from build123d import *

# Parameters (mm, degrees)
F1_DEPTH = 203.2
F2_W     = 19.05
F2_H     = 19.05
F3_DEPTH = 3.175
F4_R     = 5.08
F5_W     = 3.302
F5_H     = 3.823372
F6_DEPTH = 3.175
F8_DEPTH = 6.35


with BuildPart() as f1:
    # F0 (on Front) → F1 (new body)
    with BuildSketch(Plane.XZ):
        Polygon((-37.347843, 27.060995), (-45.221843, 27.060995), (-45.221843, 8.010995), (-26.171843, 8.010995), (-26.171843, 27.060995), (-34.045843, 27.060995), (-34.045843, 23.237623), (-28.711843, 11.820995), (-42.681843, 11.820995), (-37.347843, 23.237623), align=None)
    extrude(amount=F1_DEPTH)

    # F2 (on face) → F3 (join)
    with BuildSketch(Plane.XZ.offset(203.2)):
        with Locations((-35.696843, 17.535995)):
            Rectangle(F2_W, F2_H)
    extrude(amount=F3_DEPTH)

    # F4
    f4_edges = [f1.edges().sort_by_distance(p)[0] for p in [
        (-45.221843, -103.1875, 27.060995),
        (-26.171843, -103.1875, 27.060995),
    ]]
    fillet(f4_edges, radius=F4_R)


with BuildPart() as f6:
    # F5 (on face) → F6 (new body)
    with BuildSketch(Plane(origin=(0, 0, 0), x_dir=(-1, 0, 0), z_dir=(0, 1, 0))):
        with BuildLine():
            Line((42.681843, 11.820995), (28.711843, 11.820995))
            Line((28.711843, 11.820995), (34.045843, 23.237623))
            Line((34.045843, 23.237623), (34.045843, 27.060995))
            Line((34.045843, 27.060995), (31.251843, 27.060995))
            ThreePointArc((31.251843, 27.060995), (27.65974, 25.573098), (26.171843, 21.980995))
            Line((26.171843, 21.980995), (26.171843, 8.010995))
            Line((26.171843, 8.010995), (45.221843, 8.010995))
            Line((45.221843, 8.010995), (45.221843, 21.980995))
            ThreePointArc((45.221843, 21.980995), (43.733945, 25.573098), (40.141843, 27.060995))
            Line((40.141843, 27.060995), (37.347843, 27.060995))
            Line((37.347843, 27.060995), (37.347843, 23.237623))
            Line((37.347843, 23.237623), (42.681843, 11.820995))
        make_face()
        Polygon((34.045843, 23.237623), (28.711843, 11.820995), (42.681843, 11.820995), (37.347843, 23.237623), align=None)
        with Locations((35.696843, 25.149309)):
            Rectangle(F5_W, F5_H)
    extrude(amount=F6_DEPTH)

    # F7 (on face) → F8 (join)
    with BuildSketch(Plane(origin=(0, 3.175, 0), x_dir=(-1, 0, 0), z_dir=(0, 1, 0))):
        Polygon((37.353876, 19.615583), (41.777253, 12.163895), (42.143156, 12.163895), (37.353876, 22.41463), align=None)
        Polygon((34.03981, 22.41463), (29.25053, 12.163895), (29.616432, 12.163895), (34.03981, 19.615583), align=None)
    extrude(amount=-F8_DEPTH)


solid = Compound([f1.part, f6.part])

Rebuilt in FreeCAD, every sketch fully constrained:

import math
import FreeCAD as App
import Part
import Sketcher
Q = App.Units.Quantity


def edges_at(feature, points):
    """Names of the edges that pass closest to the given points."""
    edges = feature.Shape.Edges
    near = lambda p: min(range(len(edges)), key=lambda i: edges[i].distToShape(Part.Vertex(*p))[0])
    return sorted({f"Edge{near(p) + 1}" for p in points})


def add_polygon(sketch, points):
    """Adds a closed chain of lines whose ends are joined by coincident constraints."""
    first, n = sketch.GeometryCount, len(points)
    for a, b in zip(points, points[1:] + points[:1]):
        sketch.addGeometry(Part.LineSegment(App.Vector(*a, 0), App.Vector(*b, 0)), False)
    for i in range(n):
        sketch.addConstraint(Sketcher.Constraint("Coincident", first + i, 2, first + (i + 1) % n, 1))

doc = App.newDocument("Part")
body = doc.addObject("PartDesign::Body", "Body")

# Sketch on XZ plane
sketch1 = body.newObject("Sketcher::SketchObject", "Sketch")
sketch1.AttachmentSupport = (doc.getObject("XZ_Plane"), [""])
sketch1.MapMode = "FlatFace"
add_polygon(sketch1, [(-37.3, 27.1), (-45.2, 27.1), (-45.2, 8), (-26.2, 8), (-26.2, 27.1), (-34, 27.1), (-34, 23.2), (-28.7, 11.8), (-42.7, 11.8), (-37.3, 23.2)])  # lines 0-9
sketch1.addConstraint([
    Sketcher.Constraint("Horizontal", 0),
    Sketcher.Constraint("Vertical", 1),
    Sketcher.Constraint("Horizontal", 2),
    Sketcher.Constraint("Vertical", 3),
    Sketcher.Constraint("Horizontal", 4),
    Sketcher.Constraint("Vertical", 5),
    Sketcher.Constraint("Horizontal", 7),
    Sketcher.Constraint("Vertical", 9),
    Sketcher.Constraint("Horizontal", 0, 2, 3, 2),
    Sketcher.Constraint("Horizontal", 5, 2, 8, 2),
    Sketcher.Constraint("Equal", 0, 4),
    Sketcher.Constraint("Equal", 2, 1),
    Sketcher.Constraint("Equal", 6, 8),
    Sketcher.Constraint("DistanceX", 0, 2, 0, 1, Q("0.31 in")),
    Sketcher.Constraint("DistanceX", 2, 1, 2, 2, Q("0.75 in")),
    Sketcher.Constraint("DistanceX", 7, 2, 7, 1, Q("0.55 in")),
    Sketcher.Constraint("DistanceY", 6, 2, 3, 2, Q("0.6 in")),
    Sketcher.Constraint("DistanceY", 5, 2, 5, 1, Q("3.823372 mm")),
    Sketcher.Constraint("DistanceX", 0, 2, -1, 1, Q("45.221843 mm")),
    Sketcher.Constraint("DistanceY", -1, 1, 0, 2, Q("27.060995 mm")),
])
pad1 = body.newObject("PartDesign::Pad", "Pad")
pad1.Profile = sketch1
pad1.Length = Q("8 in")

# Sketch on XZ plane
sketch2 = body.newObject("Sketcher::SketchObject", "Sketch001")
sketch2.AttachmentSupport = (doc.getObject("XZ_Plane"), [""])
sketch2.MapMode = "FlatFace"
sketch2.AttachmentOffset = App.Placement(App.Vector(0, 0, 8 * 25.4), App.Rotation())
add_polygon(sketch2, [(-45, 27), (-45, 8), (-26, 8), (-26, 27)])  # lines 0-3
sketch2.addConstraint([
    Sketcher.Constraint("Vertical", 0),
    Sketcher.Constraint("Horizontal", 1),
    Sketcher.Constraint("Vertical", 2),
    Sketcher.Constraint("Horizontal", 3),
    Sketcher.Constraint("Equal", 3, 0),
    Sketcher.Constraint("DistanceX", 1, 1, 1, 2, Q("0.75 in")),
    Sketcher.Constraint("DistanceX", 0, 2, -1, 1, Q("45.221843 mm")),
    Sketcher.Constraint("DistanceY", -1, 1, 0, 2, Q("8.010995 mm")),
])
pad2 = body.newObject("PartDesign::Pad", "Pad001")
pad2.Profile = sketch2
pad2.Length = Q("0.125 in")
doc.recompute()

fillet = body.newObject("PartDesign::Fillet", "Fillet")
fillet.Base = (pad2, edges_at(pad2, [(-45.222, -103.188, 27.061), (-26.172, -103.188, 27.061)]))
fillet.Radius = Q("0.2 in")
body2 = doc.addObject("PartDesign::Body", "Body001")

# Sketch on XZ plane
sketch3 = body2.newObject("Sketcher::SketchObject", "Sketch002")
sketch3.AttachmentSupport = (doc.getObject("XZ_Plane001"), [""])
sketch3.MapMode = "FlatFace"
sketch3.addGeometry([
    Part.ArcOfCircle(Part.Circle(App.Vector(-31, 22, 0), App.Vector(0, 0, 1), 5), math.radians(0), math.radians(90)),  # 0
    Part.LineSegment(App.Vector(-26, 22, 0), App.Vector(-26, 8, 0)),  # 1
    Part.LineSegment(App.Vector(-26, 8, 0), App.Vector(-45, 8, 0)),  # 2
    Part.LineSegment(App.Vector(-45, 8, 0), App.Vector(-45, 22, 0)),  # 3
    Part.ArcOfCircle(Part.Circle(App.Vector(-40, 22, 0), App.Vector(0, 0, 1), 5), math.radians(90), math.radians(180)),  # 4
    Part.LineSegment(App.Vector(-40, 27, 0), App.Vector(-31, 27, 0)),  # 5
], False)
sketch3.addConstraint([
    Sketcher.Constraint("Tangent", 0, 1, 1, 1),
    Sketcher.Constraint("Coincident", 1, 2, 2, 1),
    Sketcher.Constraint("Coincident", 2, 2, 3, 1),
    Sketcher.Constraint("Tangent", 3, 2, 4, 2),
    Sketcher.Constraint("Tangent", 4, 1, 5, 1),
    Sketcher.Constraint("Tangent", 5, 2, 0, 2),
    Sketcher.Constraint("Vertical", 1),
    Sketcher.Constraint("Horizontal", 2),
    Sketcher.Constraint("Vertical", 3),
    Sketcher.Constraint("Horizontal", 5),
    Sketcher.Constraint("Equal", 0, 4),
    Sketcher.Constraint("Radius", 0, Q("0.1999999 in")),
    Sketcher.Constraint("DistanceX", 2, 2, 2, 1, Q("0.75 in")),
    Sketcher.Constraint("DistanceY", 1, 2, 1, 1, Q("0.55 in")),
    Sketcher.Constraint("DistanceX", 0, 3, -1, 1, Q("31.251841 mm")),
    Sketcher.Constraint("DistanceY", -1, 1, 0, 3, Q("21.980997 mm")),
])
pad3 = body2.newObject("PartDesign::Pad", "Pad002")
pad3.Profile = sketch3
pad3.Length = Q("0.125 in")
pad3.Reversed = True

# Sketch on XZ plane
sketch4 = body2.newObject("Sketcher::SketchObject", "Sketch003")
sketch4.AttachmentSupport = (doc.getObject("XZ_Plane001"), [""])
sketch4.MapMode = "FlatFace"
sketch4.AttachmentOffset = App.Placement(App.Vector(0, 0, -0.125 * 25.4), App.Rotation())
add_polygon(sketch4, [(-37.35, 19.62), (-41.78, 12.16), (-42.14, 12.16), (-37.35, 22.41)])  # lines 0-3
add_polygon(sketch4, [(-34.04, 22.41), (-29.25, 12.16), (-29.62, 12.16), (-34.04, 19.62)])  # lines 4-7
sketch4.addConstraint([
    Sketcher.Constraint("Horizontal", 1),
    Sketcher.Constraint("Vertical", 3),
    Sketcher.Constraint("Horizontal", 5),
    Sketcher.Constraint("Vertical", 7),
    Sketcher.Constraint("Horizontal", 1, 2, 4, 2),
    Sketcher.Constraint("Horizontal", 3, 2, 6, 2),
    Sketcher.Constraint("Horizontal", 2, 2, 7, 2),
    Sketcher.Constraint("Equal", 1, 5),
    Sketcher.Constraint("Equal", 2, 4),
    Sketcher.Constraint("DistanceX", 5, 2, 5, 1, Q("0.365902 mm")),
    Sketcher.Constraint("Distance", 2, Q("11.314361 mm")),
    Sketcher.Constraint("DistanceY", 3, 2, 3, 1, Q("2.799047 mm")),
    Sketcher.Constraint("DistanceY", -1, 1, 2, 2, Q("22.41463 mm")),
    Sketcher.Constraint("DistanceX", 4, 2, -1, 1, Q("29.25053 mm")),
    Sketcher.Constraint("DistanceX", 6, 2, -1, 1, Q("34.03981 mm")),
    Sketcher.Constraint("DistanceX", 0, 2, 5, 2, Q("12.160821 mm")),
])
pad4 = body2.newObject("PartDesign::Pad", "Pad003")
pad4.Profile = sketch4
pad4.Length = Q("0.25 in")

doc.recompute()
